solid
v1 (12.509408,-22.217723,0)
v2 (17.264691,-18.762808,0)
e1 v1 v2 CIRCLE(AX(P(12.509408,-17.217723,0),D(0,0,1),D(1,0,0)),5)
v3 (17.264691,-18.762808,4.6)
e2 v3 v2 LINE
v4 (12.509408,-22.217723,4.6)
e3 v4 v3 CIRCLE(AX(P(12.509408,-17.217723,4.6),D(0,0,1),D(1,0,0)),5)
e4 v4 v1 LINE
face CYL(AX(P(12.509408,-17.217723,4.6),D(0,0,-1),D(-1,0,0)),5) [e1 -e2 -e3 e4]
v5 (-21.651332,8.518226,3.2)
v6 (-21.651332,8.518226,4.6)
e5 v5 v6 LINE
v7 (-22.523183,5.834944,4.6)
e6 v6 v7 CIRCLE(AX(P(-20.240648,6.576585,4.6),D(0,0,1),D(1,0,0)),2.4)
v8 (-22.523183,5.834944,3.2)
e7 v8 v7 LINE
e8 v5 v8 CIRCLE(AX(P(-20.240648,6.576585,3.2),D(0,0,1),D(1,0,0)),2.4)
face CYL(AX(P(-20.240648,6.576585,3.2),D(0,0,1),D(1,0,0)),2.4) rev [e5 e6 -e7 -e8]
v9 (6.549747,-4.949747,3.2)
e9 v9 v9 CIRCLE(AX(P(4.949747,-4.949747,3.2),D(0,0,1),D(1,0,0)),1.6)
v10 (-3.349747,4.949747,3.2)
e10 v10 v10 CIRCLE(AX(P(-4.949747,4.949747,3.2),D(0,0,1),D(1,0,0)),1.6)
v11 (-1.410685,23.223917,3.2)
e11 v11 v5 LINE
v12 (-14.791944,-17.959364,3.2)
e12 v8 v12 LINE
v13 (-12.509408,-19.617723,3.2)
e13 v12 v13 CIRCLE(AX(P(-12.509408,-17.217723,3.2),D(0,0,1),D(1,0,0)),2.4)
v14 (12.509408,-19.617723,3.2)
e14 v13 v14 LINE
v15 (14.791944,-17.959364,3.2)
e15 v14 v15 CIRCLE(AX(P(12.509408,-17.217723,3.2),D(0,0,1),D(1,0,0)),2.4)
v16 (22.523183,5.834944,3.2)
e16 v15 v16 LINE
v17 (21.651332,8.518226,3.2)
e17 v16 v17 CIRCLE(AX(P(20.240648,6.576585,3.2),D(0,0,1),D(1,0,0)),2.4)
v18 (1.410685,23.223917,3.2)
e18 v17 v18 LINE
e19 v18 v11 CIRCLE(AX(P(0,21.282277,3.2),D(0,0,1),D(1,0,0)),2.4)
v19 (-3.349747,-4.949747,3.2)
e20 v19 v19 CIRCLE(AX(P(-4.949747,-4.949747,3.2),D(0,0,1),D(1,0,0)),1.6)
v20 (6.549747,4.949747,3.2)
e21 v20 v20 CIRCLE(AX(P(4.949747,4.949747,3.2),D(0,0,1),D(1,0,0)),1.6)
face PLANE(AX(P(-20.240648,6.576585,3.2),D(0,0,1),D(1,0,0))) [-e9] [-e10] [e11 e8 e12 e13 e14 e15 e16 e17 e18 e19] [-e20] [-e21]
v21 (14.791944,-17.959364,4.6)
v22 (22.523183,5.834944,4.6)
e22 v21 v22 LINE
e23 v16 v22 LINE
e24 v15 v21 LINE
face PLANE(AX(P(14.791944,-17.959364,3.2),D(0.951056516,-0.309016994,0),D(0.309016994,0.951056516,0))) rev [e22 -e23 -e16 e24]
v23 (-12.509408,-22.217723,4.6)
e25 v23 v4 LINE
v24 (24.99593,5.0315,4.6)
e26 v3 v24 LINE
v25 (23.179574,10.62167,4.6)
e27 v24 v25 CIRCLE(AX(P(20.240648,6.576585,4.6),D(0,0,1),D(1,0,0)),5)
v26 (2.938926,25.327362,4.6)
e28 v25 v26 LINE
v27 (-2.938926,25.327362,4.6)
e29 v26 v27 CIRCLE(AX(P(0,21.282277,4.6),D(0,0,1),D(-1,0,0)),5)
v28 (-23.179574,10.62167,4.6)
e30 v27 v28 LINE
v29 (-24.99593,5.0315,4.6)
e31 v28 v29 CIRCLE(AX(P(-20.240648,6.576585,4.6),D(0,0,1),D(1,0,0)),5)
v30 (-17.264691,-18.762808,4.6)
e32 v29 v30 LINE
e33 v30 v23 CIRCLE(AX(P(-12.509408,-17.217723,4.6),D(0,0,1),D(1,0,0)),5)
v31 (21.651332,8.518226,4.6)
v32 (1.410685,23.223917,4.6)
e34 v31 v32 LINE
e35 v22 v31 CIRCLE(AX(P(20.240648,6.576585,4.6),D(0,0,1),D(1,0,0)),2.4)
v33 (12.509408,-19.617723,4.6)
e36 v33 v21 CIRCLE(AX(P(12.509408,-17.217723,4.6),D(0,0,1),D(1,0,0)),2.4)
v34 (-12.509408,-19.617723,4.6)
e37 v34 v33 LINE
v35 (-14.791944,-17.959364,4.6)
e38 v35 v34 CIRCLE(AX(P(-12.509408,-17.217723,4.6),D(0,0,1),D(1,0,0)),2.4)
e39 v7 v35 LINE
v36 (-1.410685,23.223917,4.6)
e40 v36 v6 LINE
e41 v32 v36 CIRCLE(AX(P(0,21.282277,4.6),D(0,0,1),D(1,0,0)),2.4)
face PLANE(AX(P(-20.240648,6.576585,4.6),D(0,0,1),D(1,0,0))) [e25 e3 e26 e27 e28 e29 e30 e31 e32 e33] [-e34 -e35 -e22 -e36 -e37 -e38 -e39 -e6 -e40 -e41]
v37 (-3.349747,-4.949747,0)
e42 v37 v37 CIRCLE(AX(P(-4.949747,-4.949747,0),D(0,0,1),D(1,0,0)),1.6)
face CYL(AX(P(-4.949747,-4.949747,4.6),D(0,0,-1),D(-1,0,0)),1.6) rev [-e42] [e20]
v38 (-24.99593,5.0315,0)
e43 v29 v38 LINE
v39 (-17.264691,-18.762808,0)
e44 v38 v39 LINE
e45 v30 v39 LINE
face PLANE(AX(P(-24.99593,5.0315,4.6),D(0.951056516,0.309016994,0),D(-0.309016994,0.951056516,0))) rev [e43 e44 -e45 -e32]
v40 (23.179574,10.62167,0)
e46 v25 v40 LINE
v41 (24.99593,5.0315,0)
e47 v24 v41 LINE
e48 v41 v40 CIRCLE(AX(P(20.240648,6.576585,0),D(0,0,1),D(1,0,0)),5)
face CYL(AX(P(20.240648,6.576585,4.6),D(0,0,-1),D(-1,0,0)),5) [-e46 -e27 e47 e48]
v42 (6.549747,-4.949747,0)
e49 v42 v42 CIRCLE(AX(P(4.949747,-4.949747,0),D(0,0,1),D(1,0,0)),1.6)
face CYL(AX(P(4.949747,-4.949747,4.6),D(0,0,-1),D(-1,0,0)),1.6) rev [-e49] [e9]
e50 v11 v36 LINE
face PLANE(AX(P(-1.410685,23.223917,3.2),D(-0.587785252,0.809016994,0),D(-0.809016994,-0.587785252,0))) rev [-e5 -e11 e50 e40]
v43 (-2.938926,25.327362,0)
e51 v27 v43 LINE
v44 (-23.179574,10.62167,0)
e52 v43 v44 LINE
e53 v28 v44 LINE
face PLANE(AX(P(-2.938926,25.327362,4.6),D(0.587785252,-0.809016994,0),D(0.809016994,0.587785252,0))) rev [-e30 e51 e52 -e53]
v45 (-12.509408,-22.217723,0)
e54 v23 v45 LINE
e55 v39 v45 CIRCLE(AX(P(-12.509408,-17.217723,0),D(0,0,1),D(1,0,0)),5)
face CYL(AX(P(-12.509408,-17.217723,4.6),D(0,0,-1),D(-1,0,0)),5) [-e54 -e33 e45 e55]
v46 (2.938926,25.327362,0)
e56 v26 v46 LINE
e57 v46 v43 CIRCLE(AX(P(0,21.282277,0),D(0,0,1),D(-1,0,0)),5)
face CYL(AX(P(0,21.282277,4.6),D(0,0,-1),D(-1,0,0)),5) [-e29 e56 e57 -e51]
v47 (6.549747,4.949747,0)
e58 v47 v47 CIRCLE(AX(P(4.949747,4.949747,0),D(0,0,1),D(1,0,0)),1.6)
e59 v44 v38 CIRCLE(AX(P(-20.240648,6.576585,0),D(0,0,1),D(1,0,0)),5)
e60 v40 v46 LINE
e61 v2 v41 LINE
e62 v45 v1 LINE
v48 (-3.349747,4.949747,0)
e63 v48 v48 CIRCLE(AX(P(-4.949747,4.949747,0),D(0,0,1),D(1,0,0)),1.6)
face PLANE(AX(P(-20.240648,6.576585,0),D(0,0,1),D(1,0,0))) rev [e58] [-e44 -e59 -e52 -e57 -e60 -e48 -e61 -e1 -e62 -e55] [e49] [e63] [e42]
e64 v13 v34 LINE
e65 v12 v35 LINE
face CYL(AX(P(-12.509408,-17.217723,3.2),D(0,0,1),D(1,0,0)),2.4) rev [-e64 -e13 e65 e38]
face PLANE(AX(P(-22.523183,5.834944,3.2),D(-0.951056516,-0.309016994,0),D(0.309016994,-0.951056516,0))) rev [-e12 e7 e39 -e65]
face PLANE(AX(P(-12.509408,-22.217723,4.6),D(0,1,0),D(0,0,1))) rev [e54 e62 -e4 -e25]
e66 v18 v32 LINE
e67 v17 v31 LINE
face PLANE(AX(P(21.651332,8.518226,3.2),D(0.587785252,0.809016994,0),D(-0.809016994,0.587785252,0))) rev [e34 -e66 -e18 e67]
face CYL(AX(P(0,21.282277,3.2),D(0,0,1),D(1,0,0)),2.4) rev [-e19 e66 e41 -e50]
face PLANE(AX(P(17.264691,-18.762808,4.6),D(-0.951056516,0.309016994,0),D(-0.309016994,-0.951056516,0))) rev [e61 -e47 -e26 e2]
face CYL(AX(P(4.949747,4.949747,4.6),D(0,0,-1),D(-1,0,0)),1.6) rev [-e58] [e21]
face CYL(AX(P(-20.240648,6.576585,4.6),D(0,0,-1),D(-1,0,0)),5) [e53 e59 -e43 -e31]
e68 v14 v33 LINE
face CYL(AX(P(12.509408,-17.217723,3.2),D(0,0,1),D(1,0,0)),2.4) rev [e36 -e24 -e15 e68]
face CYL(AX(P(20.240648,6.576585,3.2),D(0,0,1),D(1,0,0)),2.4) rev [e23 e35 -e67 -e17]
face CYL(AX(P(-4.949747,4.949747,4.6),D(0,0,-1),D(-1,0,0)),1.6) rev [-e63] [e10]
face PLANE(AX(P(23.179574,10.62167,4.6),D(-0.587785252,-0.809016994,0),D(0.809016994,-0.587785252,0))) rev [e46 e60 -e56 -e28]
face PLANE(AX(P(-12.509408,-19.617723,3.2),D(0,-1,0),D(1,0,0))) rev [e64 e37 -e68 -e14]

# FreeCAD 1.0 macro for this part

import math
import FreeCAD as App
import Part
import Sketcher
Q = App.Units.Quantity

doc = App.newDocument("Part")
body = doc.addObject("PartDesign::Body", "Body")

# Sketch on XY plane
sketch1 = doc.addObject("Sketcher::SketchObject", "Sketch")
body.addObject(sketch1)
sketch1.AttachmentSupport = (doc.XY_Plane, [""])
sketch1.MapMode = "FlatFace"
sketch1.addGeometry(Part.LineSegment(App.Vector(-2.9, 25.3, 0), App.Vector(-23.2, 10.6, 0)), False)
sketch1.addGeometry(Part.ArcOfCircle(Part.Circle(App.Vector(-20.2, 6.6, 0), App.Vector(0, 0, 1), 5), math.radians(126), math.radians(198)), False)
sketch1.addGeometry(Part.LineSegment(App.Vector(-25, 5, 0), App.Vector(-17.3, -18.8, 0)), False)
sketch1.addGeometry(Part.ArcOfCircle(Part.Circle(App.Vector(-12.5, -17.2, 0), App.Vector(0, 0, 1), 5), math.radians(-162), math.radians(-90)), False)
sketch1.addGeometry(Part.LineSegment(App.Vector(-12.5, -22.2, 0), App.Vector(12.5, -22.2, 0)), False)
sketch1.addGeometry(Part.ArcOfCircle(Part.Circle(App.Vector(12.5, -17.2, 0), App.Vector(0, 0, 1), 5), math.radians(-90), math.radians(-18)), False)
sketch1.addGeometry(Part.LineSegment(App.Vector(17.3, -18.8, 0), App.Vector(25, 5, 0)), False)
sketch1.addGeometry(Part.ArcOfCircle(Part.Circle(App.Vector(20.2, 6.6, 0), App.Vector(0, 0, 1), 5), math.radians(-18), math.radians(54)), False)
sketch1.addGeometry(Part.LineSegment(App.Vector(23.2, 10.6, 0), App.Vector(2.9, 25.3, 0)), False)
sketch1.addGeometry(Part.ArcOfCircle(Part.Circle(App.Vector(0, 21.3, 0), App.Vector(0, 0, 1), 5), math.radians(54), math.radians(126)), False)
sketch1.addGeometry(Part.Circle(App.Vector(-4.9, -4.9, 0), App.Vector(0, 0, 1), 1.6), False)
sketch1.addGeometry(Part.Circle(App.Vector(4.9, -4.9, 0), App.Vector(0, 0, 1), 1.6), False)
sketch1.addGeometry(Part.Circle(App.Vector(-4.9, 4.9, 0), App.Vector(0, 0, 1), 1.6), False)
sketch1.addGeometry(Part.Circle(App.Vector(4.9, 4.9, 0), App.Vector(0, 0, 1), 1.6), False)
sketch1.addConstraint(Sketcher.Constraint("Tangent", 0, 2, 1, 1))
sketch1.addConstraint(Sketcher.Constraint("Tangent", 1, 2, 2, 1))
sketch1.addConstraint(Sketcher.Constraint("Tangent", 2, 2, 3, 1))
sketch1.addConstraint(Sketcher.Constraint("Tangent", 3, 2, 4, 1))
sketch1.addConstraint(Sketcher.Constraint("Tangent", 4, 2, 5, 1))
sketch1.addConstraint(Sketcher.Constraint("Tangent", 5, 2, 6, 1))
sketch1.addConstraint(Sketcher.Constraint("Tangent", 6, 2, 7, 1))
sketch1.addConstraint(Sketcher.Constraint("Tangent", 7, 2, 8, 1))
sketch1.addConstraint(Sketcher.Constraint("Tangent", 8, 2, 9, 1))
sketch1.addConstraint(Sketcher.Constraint("Tangent", 9, 2, 0, 1))
sketch1.addConstraint(Sketcher.Constraint("Horizontal", 4))
sketch1.addConstraint(Sketcher.Constraint("Equal", 1, 3))
sketch1.addConstraint(Sketcher.Constraint("Equal", 3, 5))
sketch1.addConstraint(Sketcher.Constraint("Equal", 5, 7))
sketch1.addConstraint(Sketcher.Constraint("Equal", 7, 9))
sketch1.addConstraint(Sketcher.Constraint("Equal", 10, 11))
sketch1.addConstraint(Sketcher.Constraint("Equal", 11, 12))
sketch1.addConstraint(Sketcher.Constraint("Equal", 12, 13))
sketch1.addConstraint(Sketcher.Constraint("Symmetric", 11, 3, 12, 3, -1, 1))
sketch1.addConstraint(Sketcher.Constraint("Symmetric", 10, 3, 13, 3, -1, 1))
sketch1.addConstraint(Sketcher.Constraint("Symmetric", 1, 3, 7, 3, -2))
sketch1.addConstraint(Sketcher.Constraint("Symmetric", 10, 3, 11, 3, -2))
sketch1.addConstraint(Sketcher.Constraint("PointOnObject", 9, 3, -2))
sketch1.addConstraint(Sketcher.Constraint("Horizontal", 2, 2, 5, 2))
sketch1.addConstraint(Sketcher.Constraint("Equal", 0, 2))
sketch1.addConstraint(Sketcher.Constraint("Radius", 1, 5.0))
sketch1.addConstraint(Sketcher.Constraint("Diameter", 10, 3.2))
sketch1.addConstraint(Sketcher.Constraint("Angle", 0, Q("-144 deg")))
sketch1.addConstraint(Sketcher.Constraint("Angle", 2, Q("-72 deg")))
sketch1.addConstraint(Sketcher.Constraint("DistanceY", 3, 3, 9, 3, 38.5))
sketch1.addConstraint(Sketcher.Constraint("DistanceY", -1, 1, 1, 2, 5.0315))
sketch1.addConstraint(Sketcher.Constraint("DistanceX", 1, 3, 10, 3, 15.2909))
sketch1.addConstraint(Sketcher.Constraint("DistanceY", 12, 3, 9, 3, 16.332529))
pad1 = doc.addObject("PartDesign::Pad", "Pad")
body.addObject(pad1)
pad1.Profile = sketch1
pad1.Length = 4.6

# Sketch on XY plane
sketch2 = doc.addObject("Sketcher::SketchObject", "Sketch001")
body.addObject(sketch2)
sketch2.AttachmentSupport = (doc.XY_Plane, [""])
sketch2.MapMode = "FlatFace"
sketch2.AttachmentOffset = App.Placement(App.Vector(0, 0, 4.6), App.Rotation())
sketch2.addGeometry(Part.LineSegment(App.Vector(-22.5, 5.8, 0), App.Vector(-14.8, -18, 0)), False)
sketch2.addGeometry(Part.ArcOfCircle(Part.Circle(App.Vector(-12.5, -17.2, 0), App.Vector(0, 0, 1), 2.4), math.radians(-162), math.radians(-90)), False)
sketch2.addGeometry(Part.LineSegment(App.Vector(-12.5, -19.6, 0), App.Vector(12.5, -19.6, 0)), False)
sketch2.addGeometry(Part.ArcOfCircle(Part.Circle(App.Vector(12.5, -17.2, 0), App.Vector(0, 0, 1), 2.4), math.radians(-90), math.radians(-18)), False)
sketch2.addGeometry(Part.LineSegment(App.Vector(14.8, -18, 0), App.Vector(22.5, 5.8, 0)), False)
sketch2.addGeometry(Part.ArcOfCircle(Part.Circle(App.Vector(20.2, 6.6, 0), App.Vector(0, 0, 1), 2.4), math.radians(-18), math.radians(54)), False)
sketch2.addGeometry(Part.LineSegment(App.Vector(21.7, 8.5, 0), App.Vector(1.4, 23.2, 0)), False)
sketch2.addGeometry(Part.ArcOfCircle(Part.Circle(App.Vector(0, 21.3, 0), App.Vector(0, 0, 1), 2.4), math.radians(54), math.radians(126)), False)
sketch2.addGeometry(Part.LineSegment(App.Vector(-1.4, 23.2, 0), App.Vector(-21.7, 8.5, 0)), False)
sketch2.addGeometry(Part.ArcOfCircle(Part.Circle(App.Vector(-20.2, 6.6, 0), App.Vector(0, 0, 1), 2.4), math.radians(126), math.radians(198)), False)
sketch2.addConstraint(Sketcher.Constraint("Tangent", 0, 2, 1, 1))
sketch2.addConstraint(Sketcher.Constraint("Tangent", 1, 2, 2, 1))
sketch2.addConstraint(Sketcher.Constraint("Tangent", 2, 2, 3, 1))
sketch2.addConstraint(Sketcher.Constraint("Tangent", 3, 2, 4, 1))
sketch2.addConstraint(Sketcher.Constraint("Tangent", 4, 2, 5, 1))
sketch2.addConstraint(Sketcher.Constraint("Tangent", 5, 2, 6, 1))
sketch2.addConstraint(Sketcher.Constraint("Tangent", 6, 2, 7, 1))
sketch2.addConstraint(Sketcher.Constraint("Tangent", 7, 2, 8, 1))
sketch2.addConstraint(Sketcher.Constraint("Tangent", 8, 2, 9, 1))
sketch2.addConstraint(Sketcher.Constraint("Tangent", 9, 2, 0, 1))
sketch2.addConstraint(Sketcher.Constraint("Horizontal", 2))
sketch2.addConstraint(Sketcher.Constraint("Equal", 1, 3))
sketch2.addConstraint(Sketcher.Constraint("Equal", 3, 5))
sketch2.addConstraint(Sketcher.Constraint("Equal", 5, 7))
sketch2.addConstraint(Sketcher.Constraint("Equal", 7, 9))
sketch2.addConstraint(Sketcher.Constraint("Symmetric", 5, 3, 9, 3, -2))
sketch2.addConstraint(Sketcher.Constraint("PointOnObject", 7, 3, -2))
sketch2.addConstraint(Sketcher.Constraint("Horizontal", 0, 2, 3, 2))
sketch2.addConstraint(Sketcher.Constraint("Equal", 4, 6))
sketch2.addConstraint(Sketcher.Constraint("Radius", 1, 2.4))
sketch2.addConstraint(Sketcher.Constraint("Angle", 0, Q("-72 deg")))
sketch2.addConstraint(Sketcher.Constraint("Angle", 6, Q("144 deg")))
sketch2.addConstraint(Sketcher.Constraint("DistanceY", 1, 3, 7, 3, 38.5))
sketch2.addConstraint(Sketcher.Constraint("DistanceY", 1, 3, -1, 1, 17.217723))
pocket1 = doc.addObject("PartDesign::Pocket", "Pocket")
body.addObject(pocket1)
pocket1.Profile = sketch2
pocket1.Length = 1.4

doc.recompute()
